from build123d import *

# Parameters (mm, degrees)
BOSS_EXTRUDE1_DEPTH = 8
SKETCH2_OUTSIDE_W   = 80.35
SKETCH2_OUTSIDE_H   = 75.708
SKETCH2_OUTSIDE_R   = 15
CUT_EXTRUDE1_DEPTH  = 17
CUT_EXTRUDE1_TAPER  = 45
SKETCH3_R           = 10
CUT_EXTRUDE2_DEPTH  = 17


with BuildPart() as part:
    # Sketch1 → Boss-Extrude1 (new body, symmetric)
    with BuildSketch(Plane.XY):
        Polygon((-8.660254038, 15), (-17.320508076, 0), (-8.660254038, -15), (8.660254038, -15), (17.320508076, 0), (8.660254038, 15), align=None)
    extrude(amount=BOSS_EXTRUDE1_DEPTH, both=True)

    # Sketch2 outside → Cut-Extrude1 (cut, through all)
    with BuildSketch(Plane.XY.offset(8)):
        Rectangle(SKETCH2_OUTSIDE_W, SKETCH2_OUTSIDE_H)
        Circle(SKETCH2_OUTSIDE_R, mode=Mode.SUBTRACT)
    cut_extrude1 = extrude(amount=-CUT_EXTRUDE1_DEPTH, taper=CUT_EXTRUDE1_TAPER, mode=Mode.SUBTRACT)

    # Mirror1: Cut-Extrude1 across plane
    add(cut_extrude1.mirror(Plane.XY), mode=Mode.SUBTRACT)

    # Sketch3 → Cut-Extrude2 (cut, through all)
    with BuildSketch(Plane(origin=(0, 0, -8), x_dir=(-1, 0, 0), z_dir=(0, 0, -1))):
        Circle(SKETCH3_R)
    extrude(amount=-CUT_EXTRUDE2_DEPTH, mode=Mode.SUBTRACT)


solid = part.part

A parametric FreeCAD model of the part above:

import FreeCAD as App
import Part
import Sketcher

V = App.Vector
Q = App.Units.Quantity


def add_polygon(sketch, points):
    """Adds a closed chain of lines whose ends are joined by coincident constraints."""
    first, n = sketch.GeometryCount, len(points)
    for a, b in zip(points, points[1:] + points[:1]):
        sketch.addGeometry(Part.LineSegment(App.Vector(*a, 0), App.Vector(*b, 0)), False)
    for i in range(n):
        sketch.addConstraint(Sketcher.Constraint("Coincident", first + i, 2, first + (i + 1) % n, 1))

doc = App.newDocument("Part")
body = doc.addObject("PartDesign::Body", "Body")

sketch1 = body.newObject("Sketcher::SketchObject", "Sketch")
sketch1.AttachmentSupport = (doc.getObject("XY_Plane"), [""])
sketch1.MapMode = "FlatFace"
add_polygon(sketch1, [(-8.660254, 15), (-17.320508, 0), (-8.660254, -15), (8.660254, -15), (17.320508, 0), (8.660254, 15)])
sketch1.addConstraint(Sketcher.Constraint("Horizontal", 2))
sketch1.addConstraint(Sketcher.Constraint("Horizontal", 5))
sketch1.addConstraint(Sketcher.Constraint("Symmetric", 0, 2, 3, 2, -1, 1))
sketch1.addConstraint(Sketcher.Constraint("Symmetric", 1, 2, 4, 2, -1, 1))
sketch1.addConstraint(Sketcher.Constraint("PointOnObject", 0, 2, -1))
sketch1.addConstraint(Sketcher.Constraint("Parallel", 0, 3))
sketch1.addConstraint(Sketcher.Constraint("Vertical", 2, 2, 4, 2))
sketch1.addConstraint(Sketcher.Constraint("Angle", 0, Q("-120 deg")))
sketch1.addConstraint(Sketcher.Constraint("DistanceY", 1, 2, -1, 1, Q("15 mm")))
sketch1.addConstraint(Sketcher.Constraint("DistanceX", 2, 1, 2, 2, Q("17.320508 mm")))
pad1 = body.newObject("PartDesign::Pad", "Pad")
pad1.Profile = sketch1
pad1.Length = 16
pad1.Midplane = True

sketch2 = body.newObject("Sketcher::SketchObject", "Sketch001")
sketch2.AttachmentSupport = (doc.getObject("XY_Plane"), [""])
sketch2.MapMode = "FlatFace"
sketch2.AttachmentOffset = App.Placement(V(0, 0, 8), App.Rotation())
add_polygon(sketch2, [(-40.175, 37.854), (-40.175, -37.854), (40.175, -37.854), (40.175, 37.854)])
sketch2.addGeometry(Part.Circle(V(0, 0, 0), V(0, 0, 1), 15), False)
sketch2.addConstraint(Sketcher.Constraint("Vertical", 0))
sketch2.addConstraint(Sketcher.Constraint("Horizontal", 1))
sketch2.addConstraint(Sketcher.Constraint("Vertical", 2))
sketch2.addConstraint(Sketcher.Constraint("Horizontal", 3))
sketch2.addConstraint(Sketcher.Constraint("Coincident", 4, 3, -1, 1))
sketch2.addConstraint(Sketcher.Constraint("Symmetric", 0, 2, 2, 2, -1, 1))
sketch2.addConstraint(Sketcher.Constraint("Diameter", 4, Q("30 mm")))
sketch2.addConstraint(Sketcher.Constraint("DistanceX", 1, 1, 1, 2, Q("80.35 mm")))
sketch2.addConstraint(Sketcher.Constraint("DistanceY", 0, 2, 0, 1, Q("75.708 mm")))
pocket1 = body.newObject("PartDesign::Pocket", "Pocket")
pocket1.Profile = sketch2
pocket1.Length = 17
pocket1.TaperAngle = 45
doc.recompute()

mirrored = body.newObject("PartDesign::Mirrored", "Mirrored")
mirrored.Originals = [pocket1]
mirrored.MirrorPlane = (doc.getObject("XY_Plane"), [""])
body.Tip = mirrored

sketch3 = body.newObject("Sketcher::SketchObject", "Sketch002")
sketch3.AttachmentSupport = (doc.getObject("XY_Plane"), [""])
sketch3.MapMode = "FlatFace"
sketch3.AttachmentOffset = App.Placement(V(0, 0, -8), App.Rotation())
sketch3.addGeometry(Part.Circle(V(0, 0, 0), V(0, 0, 1), 10), False)
sketch3.addConstraint(Sketcher.Constraint("Coincident", 0, 3, -1, 1))
sketch3.addConstraint(Sketcher.Constraint("Diameter", 0, Q("20 mm")))
pocket2 = body.newObject("PartDesign::Pocket", "Pocket001")
pocket2.Profile = sketch3
pocket2.Type = "ThroughAll"
pocket2.Reversed = True

doc.recompute()
